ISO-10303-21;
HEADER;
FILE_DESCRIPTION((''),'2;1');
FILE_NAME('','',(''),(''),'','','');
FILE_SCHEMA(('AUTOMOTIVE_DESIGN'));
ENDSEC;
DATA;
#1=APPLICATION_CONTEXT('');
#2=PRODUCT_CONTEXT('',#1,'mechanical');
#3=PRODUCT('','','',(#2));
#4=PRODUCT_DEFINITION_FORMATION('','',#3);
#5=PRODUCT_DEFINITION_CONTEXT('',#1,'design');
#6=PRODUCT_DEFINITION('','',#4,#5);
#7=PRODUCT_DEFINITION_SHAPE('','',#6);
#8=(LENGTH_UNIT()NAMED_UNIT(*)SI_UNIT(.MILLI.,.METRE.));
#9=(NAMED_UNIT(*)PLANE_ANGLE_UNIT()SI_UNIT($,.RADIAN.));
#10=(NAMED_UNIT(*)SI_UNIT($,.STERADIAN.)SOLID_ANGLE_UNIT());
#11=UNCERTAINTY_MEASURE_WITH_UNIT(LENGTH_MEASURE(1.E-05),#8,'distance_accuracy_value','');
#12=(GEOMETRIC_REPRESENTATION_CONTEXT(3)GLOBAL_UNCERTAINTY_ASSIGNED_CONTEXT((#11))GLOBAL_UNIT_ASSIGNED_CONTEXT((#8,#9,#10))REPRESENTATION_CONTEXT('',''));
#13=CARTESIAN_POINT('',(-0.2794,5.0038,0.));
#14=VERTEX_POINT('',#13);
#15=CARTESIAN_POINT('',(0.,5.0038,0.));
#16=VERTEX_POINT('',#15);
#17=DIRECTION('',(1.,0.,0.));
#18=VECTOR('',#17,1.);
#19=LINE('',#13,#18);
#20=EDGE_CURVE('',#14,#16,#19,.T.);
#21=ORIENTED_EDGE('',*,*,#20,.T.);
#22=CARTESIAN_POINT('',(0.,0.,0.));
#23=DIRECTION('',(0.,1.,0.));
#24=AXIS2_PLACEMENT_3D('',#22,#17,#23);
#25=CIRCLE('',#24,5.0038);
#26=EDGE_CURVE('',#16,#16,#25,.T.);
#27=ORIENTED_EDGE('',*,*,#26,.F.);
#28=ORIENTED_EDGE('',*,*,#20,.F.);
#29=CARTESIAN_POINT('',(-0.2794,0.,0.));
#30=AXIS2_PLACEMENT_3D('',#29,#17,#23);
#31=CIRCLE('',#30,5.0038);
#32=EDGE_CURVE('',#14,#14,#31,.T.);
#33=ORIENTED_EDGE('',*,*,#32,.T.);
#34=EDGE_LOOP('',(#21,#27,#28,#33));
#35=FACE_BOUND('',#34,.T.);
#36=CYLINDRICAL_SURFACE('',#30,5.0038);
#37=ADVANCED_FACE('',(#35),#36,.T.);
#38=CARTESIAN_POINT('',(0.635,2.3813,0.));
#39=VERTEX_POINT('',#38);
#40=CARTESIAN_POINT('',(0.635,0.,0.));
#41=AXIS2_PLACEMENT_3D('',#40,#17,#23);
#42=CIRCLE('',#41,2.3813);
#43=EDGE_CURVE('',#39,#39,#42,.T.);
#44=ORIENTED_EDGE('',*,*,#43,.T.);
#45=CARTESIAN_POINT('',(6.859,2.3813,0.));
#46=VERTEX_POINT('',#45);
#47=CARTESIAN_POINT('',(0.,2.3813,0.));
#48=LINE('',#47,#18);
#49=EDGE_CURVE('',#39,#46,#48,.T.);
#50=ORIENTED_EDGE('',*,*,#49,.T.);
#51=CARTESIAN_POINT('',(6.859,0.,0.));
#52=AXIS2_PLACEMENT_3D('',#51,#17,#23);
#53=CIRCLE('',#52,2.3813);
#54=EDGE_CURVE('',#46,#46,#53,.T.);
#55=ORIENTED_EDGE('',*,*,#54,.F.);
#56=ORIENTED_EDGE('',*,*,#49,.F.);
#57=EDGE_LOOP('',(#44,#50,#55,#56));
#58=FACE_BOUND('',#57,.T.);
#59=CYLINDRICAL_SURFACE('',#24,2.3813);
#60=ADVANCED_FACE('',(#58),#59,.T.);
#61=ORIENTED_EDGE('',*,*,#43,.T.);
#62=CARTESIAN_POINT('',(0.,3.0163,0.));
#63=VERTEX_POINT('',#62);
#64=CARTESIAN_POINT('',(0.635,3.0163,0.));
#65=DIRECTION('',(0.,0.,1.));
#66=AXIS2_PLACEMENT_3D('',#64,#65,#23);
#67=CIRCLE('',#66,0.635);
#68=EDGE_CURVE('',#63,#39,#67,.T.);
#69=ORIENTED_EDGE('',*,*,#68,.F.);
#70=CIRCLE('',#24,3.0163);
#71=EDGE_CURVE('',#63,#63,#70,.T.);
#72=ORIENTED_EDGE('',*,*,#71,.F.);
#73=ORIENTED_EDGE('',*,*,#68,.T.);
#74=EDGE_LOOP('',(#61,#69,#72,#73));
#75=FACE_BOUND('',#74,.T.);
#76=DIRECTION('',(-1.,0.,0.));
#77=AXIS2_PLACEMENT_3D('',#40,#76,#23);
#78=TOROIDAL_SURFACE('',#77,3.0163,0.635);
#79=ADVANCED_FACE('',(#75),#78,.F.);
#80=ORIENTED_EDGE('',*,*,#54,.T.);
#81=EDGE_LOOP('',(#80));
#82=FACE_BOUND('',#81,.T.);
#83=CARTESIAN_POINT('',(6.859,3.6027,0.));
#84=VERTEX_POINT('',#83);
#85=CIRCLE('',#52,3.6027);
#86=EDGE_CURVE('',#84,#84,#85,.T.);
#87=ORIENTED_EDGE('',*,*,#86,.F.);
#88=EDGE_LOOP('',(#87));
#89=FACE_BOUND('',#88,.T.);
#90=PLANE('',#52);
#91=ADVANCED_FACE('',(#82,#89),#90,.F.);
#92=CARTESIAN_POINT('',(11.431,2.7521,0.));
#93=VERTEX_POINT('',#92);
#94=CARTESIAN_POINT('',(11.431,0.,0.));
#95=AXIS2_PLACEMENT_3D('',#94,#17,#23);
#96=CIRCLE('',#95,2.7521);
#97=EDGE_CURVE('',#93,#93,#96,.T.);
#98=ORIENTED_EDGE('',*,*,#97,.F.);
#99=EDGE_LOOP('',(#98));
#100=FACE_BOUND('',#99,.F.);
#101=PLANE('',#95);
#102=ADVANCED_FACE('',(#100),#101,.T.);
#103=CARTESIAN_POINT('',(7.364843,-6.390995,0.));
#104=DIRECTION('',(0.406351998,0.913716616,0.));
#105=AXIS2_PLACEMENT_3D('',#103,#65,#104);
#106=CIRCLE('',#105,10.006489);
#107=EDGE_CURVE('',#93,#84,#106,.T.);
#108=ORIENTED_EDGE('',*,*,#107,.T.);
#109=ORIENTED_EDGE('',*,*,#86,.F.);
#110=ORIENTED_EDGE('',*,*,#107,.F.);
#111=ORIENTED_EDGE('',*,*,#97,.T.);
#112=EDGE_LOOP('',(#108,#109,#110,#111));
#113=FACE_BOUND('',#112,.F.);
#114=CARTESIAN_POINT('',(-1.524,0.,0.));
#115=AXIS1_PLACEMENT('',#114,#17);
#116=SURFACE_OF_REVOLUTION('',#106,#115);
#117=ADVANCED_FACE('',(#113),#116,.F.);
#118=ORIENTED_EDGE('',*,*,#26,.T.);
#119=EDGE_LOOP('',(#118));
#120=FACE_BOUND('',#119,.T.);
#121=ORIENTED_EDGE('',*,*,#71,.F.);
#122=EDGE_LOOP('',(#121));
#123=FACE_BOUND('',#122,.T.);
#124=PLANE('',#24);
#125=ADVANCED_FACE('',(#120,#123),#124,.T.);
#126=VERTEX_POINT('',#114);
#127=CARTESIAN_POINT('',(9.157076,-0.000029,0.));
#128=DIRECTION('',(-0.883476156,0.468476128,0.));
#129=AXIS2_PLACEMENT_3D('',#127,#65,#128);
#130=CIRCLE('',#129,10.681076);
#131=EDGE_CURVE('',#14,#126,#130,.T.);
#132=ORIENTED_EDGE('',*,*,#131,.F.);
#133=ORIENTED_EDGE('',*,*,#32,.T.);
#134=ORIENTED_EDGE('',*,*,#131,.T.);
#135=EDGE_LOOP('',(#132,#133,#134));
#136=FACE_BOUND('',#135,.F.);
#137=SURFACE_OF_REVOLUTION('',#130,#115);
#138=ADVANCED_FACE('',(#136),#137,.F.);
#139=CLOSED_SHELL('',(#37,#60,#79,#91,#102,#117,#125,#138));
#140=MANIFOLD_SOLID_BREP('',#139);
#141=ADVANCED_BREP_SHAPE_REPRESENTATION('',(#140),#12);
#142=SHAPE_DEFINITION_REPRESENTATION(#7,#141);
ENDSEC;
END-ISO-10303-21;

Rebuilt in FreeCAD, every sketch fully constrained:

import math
import FreeCAD as App
import Part
import Sketcher

V = App.Vector
Q = App.Units.Quantity


def edges_at(feature, points):
    """Names of the edges that pass closest to the given points."""
    edges = feature.Shape.Edges
    near = lambda p: min(range(len(edges)), key=lambda i: edges[i].distToShape(Part.Vertex(*p))[0])
    return sorted({f"Edge{near(p) + 1}" for p in points})

doc = App.newDocument("Part")
body = doc.addObject("PartDesign::Body", "Body")

# Sketch on XY plane
sketch1 = body.newObject("Sketcher::SketchObject", "Sketch")
sketch1.AttachmentSupport = (doc.getObject("XY_Plane"), [""])
sketch1.MapMode = "FlatFace"
sketch1.addGeometry([
    Part.LineSegment(V(0, 5, 0), V(-0.28, 5, 0)),  # 0
    Part.ArcOfCircle(Part.Circle(V(9.16, 0, 0), V(0, 0, 1), 10.68), math.radians(152), math.radians(180)),  # 1
    Part.LineSegment(V(-1.52, 0, 0), V(11.43, 0, 0)),  # 2
    Part.LineSegment(V(11.43, 0, 0), V(11.43, 2.75, 0)),  # 3
    Part.ArcOfCircle(Part.Circle(V(7.36, -6.39, 0), V(0, 0, 1), 10.01), math.radians(66), math.radians(93)),  # 4
    Part.LineSegment(V(6.86, 3.6, 0), V(6.86, 2.38, 0)),  # 5
    Part.LineSegment(V(6.86, 2.38, 0), V(0, 2.38, 0)),  # 6
    Part.LineSegment(V(0, 2.38, 0), V(0, 5, 0)),  # 7
], False)
sketch1.addConstraint([
    Sketcher.Constraint("Coincident", 0, 2, 1, 1),
    Sketcher.Constraint("Coincident", 1, 2, 2, 1),
    Sketcher.Constraint("Coincident", 2, 2, 3, 1),
    Sketcher.Constraint("Coincident", 3, 2, 4, 1),
    Sketcher.Constraint("Coincident", 4, 2, 5, 1),
    Sketcher.Constraint("Coincident", 5, 2, 6, 1),
    Sketcher.Constraint("Coincident", 6, 2, 7, 1),
    Sketcher.Constraint("Coincident", 7, 2, 0, 1),
    Sketcher.Constraint("Horizontal", 0),
    Sketcher.Constraint("Horizontal", 2),
    Sketcher.Constraint("Vertical", 3),
    Sketcher.Constraint("Vertical", 5),
    Sketcher.Constraint("Horizontal", 6),
    Sketcher.Constraint("Vertical", 7),
    Sketcher.Constraint("PointOnObject", 1, 3, -1),
    Sketcher.Constraint("PointOnObject", 1, 2, -1),
    Sketcher.Constraint("PointOnObject", 6, 2, -2),
    Sketcher.Constraint("DistanceX", 0, 2, 0, 1, Q("0.011 in")),
    Sketcher.Constraint("DistanceX", 1, 2, -1, 1, Q("0.06 in")),
    Sketcher.Constraint("DistanceX", 4, 2, 3, 2, Q("0.18 in")),
    Sketcher.Constraint("DistanceX", 6, 2, 6, 1, 6.859),
    Sketcher.Constraint("Radius", 1, Q("0.4205 in")),
    Sketcher.Constraint("Radius", 4, 10.0065),
    Sketcher.Constraint("DistanceY", -1, 1, 5, 2, Q("0.093752 in")),
    Sketcher.Constraint("DistanceY", 3, 1, 3, 2, 2.752),
    Sketcher.Constraint("DistanceY", 5, 2, 5, 1, 1.2214),
])
revolution = body.newObject("PartDesign::Revolution", "Revolution")
revolution.Profile = sketch1
revolution.ReferenceAxis = (sketch1, ["H_Axis"])
revolution.Angle = 360
doc.recompute()

fillet = body.newObject("PartDesign::Fillet", "Fillet")
fillet.Base = (revolution, edges_at(revolution, [(0, -2.381, 0)]))
fillet.Radius = Q("0.025 in")

doc.recompute()
